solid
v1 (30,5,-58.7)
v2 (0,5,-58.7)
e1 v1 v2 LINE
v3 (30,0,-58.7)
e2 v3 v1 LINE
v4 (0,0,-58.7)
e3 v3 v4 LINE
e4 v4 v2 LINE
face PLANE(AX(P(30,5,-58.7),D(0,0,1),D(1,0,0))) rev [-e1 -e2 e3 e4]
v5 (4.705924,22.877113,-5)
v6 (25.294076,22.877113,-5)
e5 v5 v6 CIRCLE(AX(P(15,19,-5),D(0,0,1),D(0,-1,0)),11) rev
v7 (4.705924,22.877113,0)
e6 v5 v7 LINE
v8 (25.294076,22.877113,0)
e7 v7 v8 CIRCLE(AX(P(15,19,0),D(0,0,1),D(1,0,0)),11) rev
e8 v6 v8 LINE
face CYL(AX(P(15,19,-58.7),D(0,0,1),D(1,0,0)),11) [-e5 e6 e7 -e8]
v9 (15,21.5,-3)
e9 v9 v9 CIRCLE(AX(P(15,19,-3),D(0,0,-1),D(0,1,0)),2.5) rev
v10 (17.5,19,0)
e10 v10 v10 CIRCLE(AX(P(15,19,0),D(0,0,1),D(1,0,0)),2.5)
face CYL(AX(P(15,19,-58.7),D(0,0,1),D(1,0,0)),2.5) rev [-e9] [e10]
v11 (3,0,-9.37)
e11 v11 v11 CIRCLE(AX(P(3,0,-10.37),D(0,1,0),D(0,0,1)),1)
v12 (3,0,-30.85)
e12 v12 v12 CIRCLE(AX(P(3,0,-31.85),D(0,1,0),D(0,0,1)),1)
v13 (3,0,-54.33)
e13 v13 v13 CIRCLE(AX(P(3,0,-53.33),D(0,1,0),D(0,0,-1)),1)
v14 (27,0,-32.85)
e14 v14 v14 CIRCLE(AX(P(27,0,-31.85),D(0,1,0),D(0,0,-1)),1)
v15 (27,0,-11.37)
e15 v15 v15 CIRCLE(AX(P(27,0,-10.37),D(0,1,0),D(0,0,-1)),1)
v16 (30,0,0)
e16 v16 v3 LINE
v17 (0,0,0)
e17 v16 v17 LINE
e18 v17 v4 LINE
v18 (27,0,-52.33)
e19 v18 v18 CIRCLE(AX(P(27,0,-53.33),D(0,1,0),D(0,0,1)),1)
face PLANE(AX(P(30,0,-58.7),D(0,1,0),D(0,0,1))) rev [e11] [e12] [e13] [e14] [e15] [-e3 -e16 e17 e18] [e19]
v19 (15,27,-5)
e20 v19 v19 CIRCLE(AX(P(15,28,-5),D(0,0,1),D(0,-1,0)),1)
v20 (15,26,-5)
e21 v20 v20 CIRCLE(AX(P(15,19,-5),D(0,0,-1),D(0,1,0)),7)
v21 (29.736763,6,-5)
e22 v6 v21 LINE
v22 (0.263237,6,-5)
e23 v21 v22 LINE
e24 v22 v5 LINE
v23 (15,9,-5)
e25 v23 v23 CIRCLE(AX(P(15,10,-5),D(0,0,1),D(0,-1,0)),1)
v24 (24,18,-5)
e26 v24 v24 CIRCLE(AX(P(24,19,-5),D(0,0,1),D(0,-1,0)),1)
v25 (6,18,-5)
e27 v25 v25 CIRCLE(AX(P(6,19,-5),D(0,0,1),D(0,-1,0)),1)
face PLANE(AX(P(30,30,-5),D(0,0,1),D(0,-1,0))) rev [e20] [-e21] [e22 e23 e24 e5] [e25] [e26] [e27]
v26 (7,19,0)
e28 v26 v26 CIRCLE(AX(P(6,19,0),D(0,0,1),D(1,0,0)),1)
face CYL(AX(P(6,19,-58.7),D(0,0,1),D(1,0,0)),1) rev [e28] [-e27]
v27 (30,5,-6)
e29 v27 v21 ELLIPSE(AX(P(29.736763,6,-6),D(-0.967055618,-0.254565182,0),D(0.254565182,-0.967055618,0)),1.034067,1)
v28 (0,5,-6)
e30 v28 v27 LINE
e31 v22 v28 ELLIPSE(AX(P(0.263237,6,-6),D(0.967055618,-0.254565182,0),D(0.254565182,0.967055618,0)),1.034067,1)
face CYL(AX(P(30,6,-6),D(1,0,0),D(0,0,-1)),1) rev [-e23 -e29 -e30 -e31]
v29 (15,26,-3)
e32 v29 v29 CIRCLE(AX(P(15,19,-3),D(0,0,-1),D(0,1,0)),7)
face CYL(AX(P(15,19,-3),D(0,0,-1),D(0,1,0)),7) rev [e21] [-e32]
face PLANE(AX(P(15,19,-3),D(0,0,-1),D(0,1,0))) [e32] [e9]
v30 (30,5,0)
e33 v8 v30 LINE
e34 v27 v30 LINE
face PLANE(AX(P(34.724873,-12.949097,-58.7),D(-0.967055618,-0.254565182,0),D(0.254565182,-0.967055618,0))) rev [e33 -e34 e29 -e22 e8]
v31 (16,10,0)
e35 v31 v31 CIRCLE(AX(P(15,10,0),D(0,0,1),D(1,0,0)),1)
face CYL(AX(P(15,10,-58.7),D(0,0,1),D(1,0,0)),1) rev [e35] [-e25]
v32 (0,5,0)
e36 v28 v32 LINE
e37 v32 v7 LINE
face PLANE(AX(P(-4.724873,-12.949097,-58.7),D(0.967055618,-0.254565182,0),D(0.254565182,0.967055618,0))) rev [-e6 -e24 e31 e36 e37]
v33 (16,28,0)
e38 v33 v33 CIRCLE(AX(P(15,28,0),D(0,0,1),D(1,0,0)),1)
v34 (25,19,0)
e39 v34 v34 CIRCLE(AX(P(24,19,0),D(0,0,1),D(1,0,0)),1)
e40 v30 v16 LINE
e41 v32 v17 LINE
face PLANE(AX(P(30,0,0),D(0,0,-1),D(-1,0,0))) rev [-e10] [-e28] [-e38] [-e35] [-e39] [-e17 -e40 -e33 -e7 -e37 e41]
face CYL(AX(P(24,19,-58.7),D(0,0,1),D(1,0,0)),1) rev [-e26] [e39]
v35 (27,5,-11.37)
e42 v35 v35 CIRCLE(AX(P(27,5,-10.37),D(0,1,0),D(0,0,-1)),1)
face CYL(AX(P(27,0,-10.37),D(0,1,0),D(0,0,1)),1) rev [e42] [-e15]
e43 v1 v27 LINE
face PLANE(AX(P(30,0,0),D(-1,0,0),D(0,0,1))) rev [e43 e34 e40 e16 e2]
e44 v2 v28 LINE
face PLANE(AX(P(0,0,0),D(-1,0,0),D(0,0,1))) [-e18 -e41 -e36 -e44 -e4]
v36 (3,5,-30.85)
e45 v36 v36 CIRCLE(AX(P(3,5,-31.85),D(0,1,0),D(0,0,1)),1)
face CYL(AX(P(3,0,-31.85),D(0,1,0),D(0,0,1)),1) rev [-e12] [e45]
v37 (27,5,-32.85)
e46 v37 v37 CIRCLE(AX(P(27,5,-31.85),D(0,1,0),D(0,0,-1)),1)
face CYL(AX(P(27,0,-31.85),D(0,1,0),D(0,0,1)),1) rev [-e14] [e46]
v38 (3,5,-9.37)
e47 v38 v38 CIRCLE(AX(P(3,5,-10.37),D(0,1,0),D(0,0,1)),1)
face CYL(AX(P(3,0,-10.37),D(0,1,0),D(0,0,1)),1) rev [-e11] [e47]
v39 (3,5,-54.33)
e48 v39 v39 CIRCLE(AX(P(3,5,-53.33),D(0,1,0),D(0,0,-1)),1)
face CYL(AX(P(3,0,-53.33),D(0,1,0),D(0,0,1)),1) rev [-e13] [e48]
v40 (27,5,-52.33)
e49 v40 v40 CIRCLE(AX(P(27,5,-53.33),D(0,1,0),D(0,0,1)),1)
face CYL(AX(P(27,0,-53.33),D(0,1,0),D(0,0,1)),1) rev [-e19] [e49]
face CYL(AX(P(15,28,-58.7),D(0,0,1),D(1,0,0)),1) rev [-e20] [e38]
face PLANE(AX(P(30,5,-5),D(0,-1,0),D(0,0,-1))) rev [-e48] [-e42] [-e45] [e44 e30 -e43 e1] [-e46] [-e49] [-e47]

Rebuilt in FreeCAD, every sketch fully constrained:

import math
import FreeCAD as App
import Part
import Sketcher
from FreeCAD import Vector
Q = App.Units.Quantity


def edges_at(feature, points):
    """Names of the edges that pass closest to the given points."""
    edges = feature.Shape.Edges
    near = lambda p: min(range(len(edges)), key=lambda i: edges[i].distToShape(Part.Vertex(*p))[0])
    return sorted({f"Edge{near(p) + 1}" for p in points})

doc = App.newDocument("Part")
body = doc.addObject("PartDesign::Body", "Body")

# Sketch on YZ plane
sketch1 = doc.addObject("Sketcher::SketchObject", "Sketch")
body.addObject(sketch1)
sketch1.AttachmentSupport = (doc.YZ_Plane, [""])
sketch1.MapMode = "FlatFace"
sketch1.addGeometry([
    Part.LineSegment(Vector(30, 0, 0), Vector(0, 0, 0)),  # 0
    Part.LineSegment(Vector(0, 0, 0), Vector(0, -58.7, 0)),  # 1
    Part.LineSegment(Vector(0, -58.7, 0), Vector(5, -58.7, 0)),  # 2
    Part.LineSegment(Vector(5, -58.7, 0), Vector(5, -5, 0)),  # 3
    Part.LineSegment(Vector(5, -5, 0), Vector(30, -5, 0)),  # 4
    Part.LineSegment(Vector(30, -5, 0), Vector(30, 0, 0)),  # 5
], False)
sketch1.addConstraint([
    Sketcher.Constraint("Coincident", 0, 2, 1, 1),
    Sketcher.Constraint("Coincident", 1, 2, 2, 1),
    Sketcher.Constraint("Coincident", 2, 2, 3, 1),
    Sketcher.Constraint("Coincident", 3, 2, 4, 1),
    Sketcher.Constraint("Coincident", 4, 2, 5, 1),
    Sketcher.Constraint("Coincident", 5, 2, 0, 1),
    Sketcher.Constraint("Horizontal", 0),
    Sketcher.Constraint("Vertical", 1),
    Sketcher.Constraint("Horizontal", 2),
    Sketcher.Constraint("Vertical", 3),
    Sketcher.Constraint("Horizontal", 4),
    Sketcher.Constraint("Vertical", 5),
    Sketcher.Constraint("Coincident", 0, 2, -1, 1),
    Sketcher.Constraint("Equal", 2, 5),
    Sketcher.Constraint("DistanceX", 0, 2, 0, 1, Q("30 mm")),
    Sketcher.Constraint("DistanceX", 2, 1, 2, 2, Q("5 mm")),
    Sketcher.Constraint("DistanceY", 1, 2, 1, 1, Q("58.7 mm")),
])
pad1 = doc.addObject("PartDesign::Pad", "Pad")
body.addObject(pad1)
pad1.Profile = sketch1
pad1.Length = 30

# Sketch on XY plane
sketch2 = doc.addObject("Sketcher::SketchObject", "Sketch001")
body.addObject(sketch2)
sketch2.AttachmentSupport = (doc.XY_Plane, [""])
sketch2.MapMode = "FlatFace"
sketch2.addGeometry([
    Part.LineSegment(Vector(30, 30, 0), Vector(15, 30, 0)),  # 0
    Part.ArcOfCircle(Part.Circle(Vector(15, 19, 0), Vector(0, 0, 1), 11), math.radians(20.638149), math.radians(90)),  # 1
    Part.LineSegment(Vector(25.294076, 22.877113, 0), Vector(30, 5, 0)),  # 2
    Part.LineSegment(Vector(30, 5, 0), Vector(30, 30, 0)),  # 3
    Part.LineSegment(Vector(0, 30, 0), Vector(0, 5, 0)),  # 4
    Part.LineSegment(Vector(0, 5, 0), Vector(4.705924, 22.877113, 0)),  # 5
    Part.ArcOfCircle(Part.Circle(Vector(15, 19, 0), Vector(0, 0, 1), 11), math.radians(90), math.radians(159.361851)),  # 6
    Part.LineSegment(Vector(15, 30, 0), Vector(0, 30, 0)),  # 7
    Part.Circle(Vector(15, 19, 0), Vector(0, 0, 1), 2.5),  # 8
    Part.Circle(Vector(24, 19, 0), Vector(0, 0, 1), 1),  # 9
    Part.Circle(Vector(15, 10, 0), Vector(0, 0, 1), 1),  # 10
    Part.Circle(Vector(6, 19, 0), Vector(0, 0, 1), 1),  # 11
    Part.Circle(Vector(15, 28, 0), Vector(0, 0, 1), 1),  # 12
], False)
sketch2.addConstraint([
    Sketcher.Constraint("Tangent", 0, 2, 1, 2),
    Sketcher.Constraint("Coincident", 1, 1, 2, 1),
    Sketcher.Constraint("Coincident", 2, 2, 3, 1),
    Sketcher.Constraint("Coincident", 3, 2, 0, 1),
    Sketcher.Constraint("Coincident", 4, 2, 5, 1),
    Sketcher.Constraint("Coincident", 5, 2, 6, 2),
    Sketcher.Constraint("Tangent", 6, 1, 7, 1),
    Sketcher.Constraint("Coincident", 7, 2, 4, 1),
    Sketcher.Constraint("Horizontal", 0),
    Sketcher.Constraint("Vertical", 3),
    Sketcher.Constraint("Vertical", 4),
    Sketcher.Constraint("Horizontal", 7),
    Sketcher.Constraint("Coincident", 6, 3, 1, 3),
    Sketcher.Constraint("Coincident", 8, 3, 1, 3),
    Sketcher.Constraint("Equal", 1, 6),
    Sketcher.Constraint("Equal", 9, 10),
    Sketcher.Constraint("Equal", 10, 11),
    Sketcher.Constraint("Equal", 11, 12),
    Sketcher.Constraint("PointOnObject", 4, 2, -2),
    Sketcher.Constraint("Horizontal", 8, 3, 9, 3),
    Sketcher.Constraint("Horizontal", 9, 3, 11, 3),
    Sketcher.Constraint("Horizontal", 2, 2, 4, 2),
    Sketcher.Constraint("Horizontal", 1, 1, 5, 2),
    Sketcher.Constraint("Vertical", 8, 3, 10, 3),
    Sketcher.Constraint("Vertical", 10, 3, 12, 3),
    Sketcher.Constraint("Equal", 0, 7),
    Sketcher.Constraint("Diameter", 8, Q("5 mm")),
    Sketcher.Constraint("Diameter", 9, Q("2 mm")),
    Sketcher.Constraint("Radius", 1, Q("11 mm")),
    Sketcher.Constraint("DistanceX", 0, 2, 0, 1, Q("15 mm")),
    Sketcher.Constraint("DistanceY", 3, 1, 3, 2, Q("25 mm")),
    Sketcher.Constraint("DistanceY", -1, 1, 1, 3, Q("19 mm")),
    Sketcher.Constraint("DistanceX", -1, 1, 9, 3, Q("24 mm")),
    Sketcher.Constraint("DistanceY", -1, 1, 10, 3, Q("10 mm")),
    Sketcher.Constraint("DistanceX", -1, 1, 11, 3, Q("6 mm")),
    Sketcher.Constraint("DistanceY", -1, 1, 12, 3, Q("28 mm")),
    Sketcher.Constraint("Distance", 2, Q("18.486127 mm")),
])
pocket1 = doc.addObject("PartDesign::Pocket", "Pocket")
body.addObject(pocket1)
pocket1.Profile = sketch2
pocket1.Type = "ThroughAll"

# Sketch on XY plane
sketch3 = doc.addObject("Sketcher::SketchObject", "Sketch002")
body.addObject(sketch3)
sketch3.AttachmentSupport = (doc.XY_Plane, [""])
sketch3.MapMode = "FlatFace"
sketch3.AttachmentOffset = App.Placement(Vector(0, 0, -5), App.Rotation())
sketch3.addGeometry(Part.Circle(Vector(15, 19, 0), Vector(0, 0, 1), 7), False)
sketch3.addConstraint([
    Sketcher.Constraint("Diameter", 0, Q("14 mm")),
    Sketcher.Constraint("DistanceX", -1, 1, 0, 3, Q("15 mm")),
    Sketcher.Constraint("DistanceY", -1, 1, 0, 3, Q("19 mm")),
])
pocket2 = doc.addObject("PartDesign::Pocket", "Pocket001")
body.addObject(pocket2)
pocket2.Profile = sketch3
pocket2.Length = 2
pocket2.Reversed = True

# Sketch on XZ plane
sketch4 = doc.addObject("Sketcher::SketchObject", "Sketch003")
body.addObject(sketch4)
sketch4.AttachmentSupport = (doc.XZ_Plane, [""])
sketch4.MapMode = "FlatFace"
sketch4.AttachmentOffset = App.Placement(Vector(0, 0, -5), App.Rotation())
sketch4.addGeometry([
    Part.Circle(Vector(3, -10.37, 0), Vector(0, 0, 1), 1),  # 0
    Part.Circle(Vector(27, -10.37, 0), Vector(0, 0, 1), 1),  # 1
    Part.Circle(Vector(27, -53.33, 0), Vector(0, 0, 1), 1),  # 2
    Part.Circle(Vector(3, -53.33, 0), Vector(0, 0, 1), 1),  # 3
    Part.Circle(Vector(3, -31.85, 0), Vector(0, 0, 1), 1),  # 4
    Part.Circle(Vector(27, -31.85, 0), Vector(0, 0, 1), 1),  # 5
], False)
sketch4.addConstraint([
    Sketcher.Constraint("Equal", 0, 1),
    Sketcher.Constraint("Equal", 1, 2),
    Sketcher.Constraint("Equal", 2, 3),
    Sketcher.Constraint("Equal", 3, 4),
    Sketcher.Constraint("Equal", 4, 5),
    Sketcher.Constraint("Horizontal", 0, 3, 1, 3),
    Sketcher.Constraint("Horizontal", 2, 3, 3, 3),
    Sketcher.Constraint("Horizontal", 4, 3, 5, 3),
    Sketcher.Constraint("Vertical", 1, 3, 2, 3),
    Sketcher.Constraint("Vertical", 0, 3, 3, 3),
    Sketcher.Constraint("Vertical", 3, 3, 4, 3),
    Sketcher.Constraint("Vertical", 2, 3, 5, 3),
    Sketcher.Constraint("Diameter", 0, Q("2 mm")),
    Sketcher.Constraint("DistanceX", -1, 1, 0, 3, Q("3 mm")),
    Sketcher.Constraint("DistanceX", -1, 1, 1, 3, Q("27 mm")),
    Sketcher.Constraint("DistanceY", 0, 3, -1, 1, Q("10.37 mm")),
    Sketcher.Constraint("DistanceY", 2, 3, -1, 1, Q("53.33 mm")),
    Sketcher.Constraint("DistanceY", 4, 3, -1, 1, Q("31.85 mm")),
])
pocket3 = doc.addObject("PartDesign::Pocket", "Pocket002")
body.addObject(pocket3)
pocket3.Profile = sketch4
pocket3.Type = "ThroughAll"
pocket3.Reversed = True
doc.recompute()

fillet = doc.addObject("PartDesign::Fillet", "Fillet")
body.addObject(fillet)
fillet.Base = (pocket3, edges_at(pocket3, [(15, 5, -5)]))
fillet.Radius = 1

doc.recompute()
